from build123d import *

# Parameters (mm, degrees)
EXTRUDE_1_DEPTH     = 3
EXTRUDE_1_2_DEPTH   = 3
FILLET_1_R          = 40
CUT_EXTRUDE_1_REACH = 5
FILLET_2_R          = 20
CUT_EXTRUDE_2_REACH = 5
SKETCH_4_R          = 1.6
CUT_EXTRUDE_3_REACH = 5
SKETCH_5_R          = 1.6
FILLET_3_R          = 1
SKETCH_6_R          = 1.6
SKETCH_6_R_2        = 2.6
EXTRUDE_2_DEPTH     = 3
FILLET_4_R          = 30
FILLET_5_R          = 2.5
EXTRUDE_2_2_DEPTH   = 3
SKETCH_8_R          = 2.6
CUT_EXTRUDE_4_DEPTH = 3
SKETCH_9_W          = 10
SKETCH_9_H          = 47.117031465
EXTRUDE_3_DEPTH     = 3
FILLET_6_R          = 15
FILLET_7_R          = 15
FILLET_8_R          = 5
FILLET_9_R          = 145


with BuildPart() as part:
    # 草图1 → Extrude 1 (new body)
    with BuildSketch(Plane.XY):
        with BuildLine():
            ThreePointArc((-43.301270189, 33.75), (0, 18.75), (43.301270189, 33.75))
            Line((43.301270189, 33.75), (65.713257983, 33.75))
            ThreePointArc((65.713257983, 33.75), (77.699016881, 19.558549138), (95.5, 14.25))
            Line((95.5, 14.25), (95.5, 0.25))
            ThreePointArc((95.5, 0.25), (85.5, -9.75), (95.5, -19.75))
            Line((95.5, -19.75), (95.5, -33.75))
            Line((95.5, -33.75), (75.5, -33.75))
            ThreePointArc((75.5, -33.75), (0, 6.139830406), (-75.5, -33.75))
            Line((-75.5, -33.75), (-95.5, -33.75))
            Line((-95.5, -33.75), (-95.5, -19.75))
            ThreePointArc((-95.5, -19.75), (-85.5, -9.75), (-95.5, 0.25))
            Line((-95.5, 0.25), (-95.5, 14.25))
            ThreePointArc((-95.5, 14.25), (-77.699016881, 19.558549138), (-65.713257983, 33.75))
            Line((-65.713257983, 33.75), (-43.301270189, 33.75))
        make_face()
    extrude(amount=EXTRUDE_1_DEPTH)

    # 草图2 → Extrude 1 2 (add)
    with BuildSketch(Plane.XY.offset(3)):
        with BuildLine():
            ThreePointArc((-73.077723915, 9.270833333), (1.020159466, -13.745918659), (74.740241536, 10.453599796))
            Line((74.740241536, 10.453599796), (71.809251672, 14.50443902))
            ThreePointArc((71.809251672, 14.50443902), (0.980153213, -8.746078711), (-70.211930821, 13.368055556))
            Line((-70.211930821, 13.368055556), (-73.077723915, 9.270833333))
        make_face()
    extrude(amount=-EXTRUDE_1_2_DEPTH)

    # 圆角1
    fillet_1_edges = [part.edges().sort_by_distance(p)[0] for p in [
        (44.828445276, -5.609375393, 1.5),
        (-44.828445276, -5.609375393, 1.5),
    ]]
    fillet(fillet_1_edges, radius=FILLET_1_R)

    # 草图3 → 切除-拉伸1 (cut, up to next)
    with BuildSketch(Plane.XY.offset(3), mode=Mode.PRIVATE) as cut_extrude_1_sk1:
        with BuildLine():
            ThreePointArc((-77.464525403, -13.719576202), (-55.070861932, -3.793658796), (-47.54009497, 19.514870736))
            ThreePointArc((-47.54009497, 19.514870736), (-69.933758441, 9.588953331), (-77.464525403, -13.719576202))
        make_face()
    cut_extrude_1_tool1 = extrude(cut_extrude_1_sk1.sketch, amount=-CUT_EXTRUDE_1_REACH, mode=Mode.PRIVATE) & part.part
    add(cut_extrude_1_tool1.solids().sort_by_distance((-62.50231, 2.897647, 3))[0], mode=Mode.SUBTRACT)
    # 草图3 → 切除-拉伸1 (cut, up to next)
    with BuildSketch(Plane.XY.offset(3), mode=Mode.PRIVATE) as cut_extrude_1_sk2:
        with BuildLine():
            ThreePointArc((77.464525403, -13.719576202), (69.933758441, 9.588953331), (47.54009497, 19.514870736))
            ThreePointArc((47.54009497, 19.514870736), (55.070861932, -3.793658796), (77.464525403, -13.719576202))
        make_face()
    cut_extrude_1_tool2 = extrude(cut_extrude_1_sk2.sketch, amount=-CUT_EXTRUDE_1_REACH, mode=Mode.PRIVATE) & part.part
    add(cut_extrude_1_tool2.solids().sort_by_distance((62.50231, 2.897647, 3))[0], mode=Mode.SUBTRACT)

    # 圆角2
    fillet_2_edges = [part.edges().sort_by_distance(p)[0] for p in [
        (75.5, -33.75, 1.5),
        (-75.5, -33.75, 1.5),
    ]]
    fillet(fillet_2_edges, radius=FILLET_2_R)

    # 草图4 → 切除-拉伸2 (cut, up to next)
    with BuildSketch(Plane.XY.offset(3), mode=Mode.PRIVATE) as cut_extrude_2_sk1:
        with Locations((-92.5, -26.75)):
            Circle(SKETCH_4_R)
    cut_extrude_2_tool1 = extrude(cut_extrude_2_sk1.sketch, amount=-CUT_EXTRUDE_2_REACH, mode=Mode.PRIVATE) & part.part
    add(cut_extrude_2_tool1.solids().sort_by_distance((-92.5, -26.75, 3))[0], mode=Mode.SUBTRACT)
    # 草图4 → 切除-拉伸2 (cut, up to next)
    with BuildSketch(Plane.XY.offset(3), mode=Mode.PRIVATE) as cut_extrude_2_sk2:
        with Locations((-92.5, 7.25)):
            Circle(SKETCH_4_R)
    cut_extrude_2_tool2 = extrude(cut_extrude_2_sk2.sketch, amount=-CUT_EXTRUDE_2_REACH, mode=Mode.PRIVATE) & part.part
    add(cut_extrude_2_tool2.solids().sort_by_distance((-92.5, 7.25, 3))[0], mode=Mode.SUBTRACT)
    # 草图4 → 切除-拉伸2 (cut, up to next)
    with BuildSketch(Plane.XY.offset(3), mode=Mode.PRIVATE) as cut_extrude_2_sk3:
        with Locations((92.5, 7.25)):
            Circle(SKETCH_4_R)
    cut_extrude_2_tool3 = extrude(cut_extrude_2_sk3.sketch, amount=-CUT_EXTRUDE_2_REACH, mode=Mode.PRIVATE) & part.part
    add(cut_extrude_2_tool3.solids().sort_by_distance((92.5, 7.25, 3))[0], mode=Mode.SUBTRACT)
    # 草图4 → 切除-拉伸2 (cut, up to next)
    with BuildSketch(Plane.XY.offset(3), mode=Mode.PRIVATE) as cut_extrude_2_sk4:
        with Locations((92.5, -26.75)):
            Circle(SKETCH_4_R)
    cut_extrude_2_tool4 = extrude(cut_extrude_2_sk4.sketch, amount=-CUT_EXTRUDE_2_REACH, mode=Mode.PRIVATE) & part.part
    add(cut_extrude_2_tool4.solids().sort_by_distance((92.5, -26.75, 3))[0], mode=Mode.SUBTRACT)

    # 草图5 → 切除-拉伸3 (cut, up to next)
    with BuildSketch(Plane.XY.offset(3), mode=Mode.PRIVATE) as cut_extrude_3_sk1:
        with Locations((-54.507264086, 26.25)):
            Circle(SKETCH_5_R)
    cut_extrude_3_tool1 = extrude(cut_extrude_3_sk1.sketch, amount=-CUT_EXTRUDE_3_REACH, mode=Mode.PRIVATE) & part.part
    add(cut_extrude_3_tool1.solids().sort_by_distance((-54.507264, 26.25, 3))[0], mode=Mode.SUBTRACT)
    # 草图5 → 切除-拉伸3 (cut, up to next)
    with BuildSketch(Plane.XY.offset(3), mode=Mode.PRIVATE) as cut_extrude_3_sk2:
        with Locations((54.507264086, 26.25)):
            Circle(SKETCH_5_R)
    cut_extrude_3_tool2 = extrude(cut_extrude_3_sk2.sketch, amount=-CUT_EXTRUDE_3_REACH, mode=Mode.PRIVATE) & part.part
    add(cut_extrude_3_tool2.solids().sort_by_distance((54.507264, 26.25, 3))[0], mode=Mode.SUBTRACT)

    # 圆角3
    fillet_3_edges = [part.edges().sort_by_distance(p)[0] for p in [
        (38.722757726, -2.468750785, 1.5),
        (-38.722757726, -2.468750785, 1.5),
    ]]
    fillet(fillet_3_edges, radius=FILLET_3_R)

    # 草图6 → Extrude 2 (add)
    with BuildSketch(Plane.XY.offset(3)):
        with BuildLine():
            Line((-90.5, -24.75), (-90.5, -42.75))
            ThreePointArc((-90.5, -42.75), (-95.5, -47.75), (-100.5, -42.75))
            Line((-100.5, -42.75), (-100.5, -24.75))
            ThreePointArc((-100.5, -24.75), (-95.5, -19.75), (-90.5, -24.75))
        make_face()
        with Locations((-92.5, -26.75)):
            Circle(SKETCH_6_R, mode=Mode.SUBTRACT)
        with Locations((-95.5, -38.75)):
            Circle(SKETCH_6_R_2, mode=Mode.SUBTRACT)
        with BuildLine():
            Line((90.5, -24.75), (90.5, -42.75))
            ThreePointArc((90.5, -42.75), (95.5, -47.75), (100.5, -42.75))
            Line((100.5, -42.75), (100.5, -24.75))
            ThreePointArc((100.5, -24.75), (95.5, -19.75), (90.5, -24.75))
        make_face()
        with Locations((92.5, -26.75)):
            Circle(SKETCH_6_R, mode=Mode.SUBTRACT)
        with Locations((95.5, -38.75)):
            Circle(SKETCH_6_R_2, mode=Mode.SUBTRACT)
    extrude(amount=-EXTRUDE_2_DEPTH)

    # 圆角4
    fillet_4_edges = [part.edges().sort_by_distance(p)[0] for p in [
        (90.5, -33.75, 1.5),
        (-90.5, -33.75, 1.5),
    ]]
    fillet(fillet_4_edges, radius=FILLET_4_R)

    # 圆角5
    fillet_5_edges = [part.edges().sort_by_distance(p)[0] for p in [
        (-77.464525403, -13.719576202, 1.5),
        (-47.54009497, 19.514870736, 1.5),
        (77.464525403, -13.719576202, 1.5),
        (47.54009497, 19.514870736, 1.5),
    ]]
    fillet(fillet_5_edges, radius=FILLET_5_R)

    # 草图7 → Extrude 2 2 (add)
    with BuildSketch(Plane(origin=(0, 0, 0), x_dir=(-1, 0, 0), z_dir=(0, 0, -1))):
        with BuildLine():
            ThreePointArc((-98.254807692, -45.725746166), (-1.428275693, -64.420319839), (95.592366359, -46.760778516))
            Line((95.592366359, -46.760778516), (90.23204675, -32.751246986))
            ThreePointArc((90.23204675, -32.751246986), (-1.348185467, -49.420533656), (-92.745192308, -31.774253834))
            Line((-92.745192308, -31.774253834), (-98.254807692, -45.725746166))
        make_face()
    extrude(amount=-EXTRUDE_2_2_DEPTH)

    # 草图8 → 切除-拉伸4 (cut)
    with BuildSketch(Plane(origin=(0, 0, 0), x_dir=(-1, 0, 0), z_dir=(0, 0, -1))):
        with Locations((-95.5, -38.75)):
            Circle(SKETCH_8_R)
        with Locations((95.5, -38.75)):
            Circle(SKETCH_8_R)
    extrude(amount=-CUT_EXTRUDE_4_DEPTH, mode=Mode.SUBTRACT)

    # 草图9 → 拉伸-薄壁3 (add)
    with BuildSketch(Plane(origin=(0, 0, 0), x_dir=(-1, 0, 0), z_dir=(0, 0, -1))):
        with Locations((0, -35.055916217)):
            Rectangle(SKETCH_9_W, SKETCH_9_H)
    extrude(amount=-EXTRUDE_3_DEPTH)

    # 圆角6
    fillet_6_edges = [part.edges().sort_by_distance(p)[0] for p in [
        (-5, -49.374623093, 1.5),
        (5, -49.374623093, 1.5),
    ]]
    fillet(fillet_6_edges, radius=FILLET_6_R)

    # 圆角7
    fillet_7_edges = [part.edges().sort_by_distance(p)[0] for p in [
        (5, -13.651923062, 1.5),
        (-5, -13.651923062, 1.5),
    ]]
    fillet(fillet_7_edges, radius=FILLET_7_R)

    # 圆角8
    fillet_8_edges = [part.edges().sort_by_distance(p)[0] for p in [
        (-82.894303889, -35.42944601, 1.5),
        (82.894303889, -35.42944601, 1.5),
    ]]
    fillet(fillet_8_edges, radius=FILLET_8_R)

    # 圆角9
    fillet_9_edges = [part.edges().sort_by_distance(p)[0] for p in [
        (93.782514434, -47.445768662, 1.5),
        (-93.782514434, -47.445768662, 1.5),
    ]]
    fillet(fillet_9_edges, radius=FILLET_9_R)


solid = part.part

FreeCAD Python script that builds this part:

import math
import FreeCAD as App
import Part
import Sketcher

V = App.Vector
Q = App.Units.Quantity


def edges_at(feature, points):
    """Names of the edges that pass closest to the given points."""
    edges = feature.Shape.Edges
    near = lambda p: min(range(len(edges)), key=lambda i: edges[i].distToShape(Part.Vertex(*p))[0])
    return sorted({f"Edge{near(p) + 1}" for p in points})

doc = App.newDocument("Part")
body = doc.addObject("PartDesign::Body", "Body")

# Sketch on XY plane
sketch1 = body.newObject("Sketcher::SketchObject", "Sketch")
sketch1.AttachmentSupport = (doc.getObject("XY_Plane"), [""])
sketch1.MapMode = "FlatFace"
sketch1.addGeometry([
    Part.ArcOfCircle(Part.Circle(V(0, 89, 0), V(0, 0, 1), 70), math.radians(-128), math.radians(-52)),  # 0
    Part.LineSegment(V(-43, 34, 0), V(-66, 34, 0)),  # 1
    Part.ArcOfCircle(Part.Circle(V(-96, 47, 0), V(0, 0, 1), 33), math.radians(-90), math.radians(-24)),  # 2
    Part.LineSegment(V(-96, 14, 0), V(-96, 0, 0)),  # 3
    Part.ArcOfCircle(Part.Circle(V(-96, -10, 0), V(0, 0, 1), 10), math.radians(-90), math.radians(90)),  # 4
    Part.LineSegment(V(-96, -20, 0), V(-96, -34, 0)),  # 5
    Part.LineSegment(V(-96, -34, 0), V(-76, -34, 0)),  # 6
    Part.ArcOfCircle(Part.Circle(V(0, -85, 0), V(0, 0, 1), 91), math.radians(34), math.radians(146)),  # 7
    Part.LineSegment(V(76, -34, 0), V(96, -34, 0)),  # 8
    Part.LineSegment(V(96, -34, 0), V(96, -20, 0)),  # 9
    Part.ArcOfCircle(Part.Circle(V(96, -10, 0), V(0, 0, 1), 10), math.radians(90), math.radians(270)),  # 10
    Part.LineSegment(V(96, 0, 0), V(96, 14, 0)),  # 11
    Part.ArcOfCircle(Part.Circle(V(96, 47, 0), V(0, 0, 1), 33), math.radians(-156), math.radians(-90)),  # 12
    Part.LineSegment(V(66, 34, 0), V(43, 34, 0)),  # 13
], False)
sketch1.addConstraint([
    Sketcher.Constraint("Coincident", 0, 1, 1, 1),
    Sketcher.Constraint("Coincident", 1, 2, 2, 2),
    Sketcher.Constraint("Coincident", 2, 1, 3, 1),
    Sketcher.Constraint("Coincident", 3, 2, 4, 2),
    Sketcher.Constraint("Coincident", 4, 1, 5, 1),
    Sketcher.Constraint("Coincident", 5, 2, 6, 1),
    Sketcher.Constraint("Coincident", 6, 2, 7, 2),
    Sketcher.Constraint("Coincident", 7, 1, 8, 1),
    Sketcher.Constraint("Coincident", 8, 2, 9, 1),
    Sketcher.Constraint("Coincident", 9, 2, 10, 2),
    Sketcher.Constraint("Coincident", 10, 1, 11, 1),
    Sketcher.Constraint("Coincident", 11, 2, 12, 2),
    Sketcher.Constraint("Coincident", 12, 1, 13, 1),
    Sketcher.Constraint("Coincident", 13, 2, 0, 2),
    Sketcher.Constraint("Horizontal", 1),
    Sketcher.Constraint("Vertical", 3),
    Sketcher.Constraint("Vertical", 5),
    Sketcher.Constraint("Horizontal", 6),
    Sketcher.Constraint("Horizontal", 8),
    Sketcher.Constraint("Vertical", 9),
    Sketcher.Constraint("Vertical", 11),
    Sketcher.Constraint("Horizontal", 13),
    Sketcher.Constraint("Equal", 4, 10),
    Sketcher.Constraint("Equal", 2, 12),
    Sketcher.Constraint("Symmetric", 4, 3, 10, 3, -2),
    Sketcher.Constraint("Symmetric", 2, 3, 12, 3, -2),
    Sketcher.Constraint("Symmetric", 6, 2, 7, 1, -2),
    Sketcher.Constraint("Symmetric", 0, 1, 13, 2, -2),
    Sketcher.Constraint("Vertical", 2, 3, 4, 3),
    Sketcher.Constraint("Vertical", 4, 3, 2, 1),
    Sketcher.Constraint("Vertical", 3, 2, 4, 1),
    Sketcher.Constraint("Vertical", 12, 3, 8, 2),
    Sketcher.Constraint("Vertical", 9, 2, 10, 1),
    Sketcher.Constraint("Equal", 3, 5),
    Sketcher.Constraint("Radius", 0, Q("70 mm")),
    Sketcher.Constraint("Radius", 4, Q("10 mm")),
    Sketcher.Constraint("Radius", 2, Q("32.5 mm")),
    Sketcher.Constraint("DistanceX", 6, 1, 6, 2, Q("20 mm")),
    Sketcher.Constraint("DistanceY", 3, 2, 3, 1, Q("14 mm")),
    Sketcher.Constraint("DistanceY", 2, 3, 0, 3, Q("42 mm")),
    Sketcher.Constraint("DistanceX", 4, 3, 10, 3, Q("191 mm")),
    Sketcher.Constraint("DistanceY", 0, 1, 2, 3, Q("13 mm")),
    Sketcher.Constraint("DistanceY", -1, 1, 0, 3, Q("88.75 mm")),
    Sketcher.Constraint("Radius", 7, Q("91.39483 mm")),
])
pad1 = body.newObject("PartDesign::Pad", "Pad")
pad1.Profile = sketch1
pad1.Length = 3

# Sketch on XY plane
sketch2 = body.newObject("Sketcher::SketchObject", "Sketch001")
sketch2.AttachmentSupport = (doc.getObject("XY_Plane"), [""])
sketch2.MapMode = "FlatFace"
sketch2.AttachmentOffset = App.Placement(V(0, 0, 3), App.Rotation())
sketch2.addGeometry([
    Part.ArcOfCircle(Part.Circle(V(0, 114, 0), V(0, 0, 1), 127), math.radians(-125), math.radians(-54)),
    Part.LineSegment(V(75, 10, 0), V(72, 15, 0)),
    Part.ArcOfCircle(Part.Circle(V(0, 114, 0), V(0, 0, 1), 123), math.radians(-125), math.radians(-54)),
    Part.LineSegment(V(-70, 13, 0), V(-73, 9, 0)),
], False)
sketch2.addConstraint([
    Sketcher.Constraint("Coincident", 0, 2, 1, 1),
    Sketcher.Constraint("Coincident", 1, 2, 2, 2),
    Sketcher.Constraint("Coincident", 2, 1, 3, 1),
    Sketcher.Constraint("Coincident", 3, 2, 0, 1),
    Sketcher.Constraint("Coincident", 2, 3, 0, 3),
    Sketcher.Constraint("PointOnObject", 0, 3, -2),
    Sketcher.Constraint("Radius", 0, Q("127.5 mm")),
    Sketcher.Constraint("Radius", 2, Q("122.5 mm")),
    Sketcher.Constraint("DistanceY", -1, 1, 0, 3, Q("113.75 mm")),
    Sketcher.Constraint("DistanceY", -1, 1, 0, 2, Q("10.4536 mm")),
    Sketcher.Constraint("DistanceX", -1, 1, 1, 2, Q("71.809252 mm")),
    Sketcher.Constraint("DistanceX", 2, 1, -1, 1, Q("70.211931 mm")),
    Sketcher.Constraint("DistanceX", 3, 2, -1, 1, Q("73.077724 mm")),
])
pad2 = body.newObject("PartDesign::Pad", "Pad001")
pad2.Profile = sketch2
pad2.Length = 3
pad2.Reversed = True
doc.recompute()

fillet = body.newObject("PartDesign::Fillet", "Fillet")
fillet.Base = (pad2, edges_at(pad2, [(44.828, -5.609, 1.5), (-44.828, -5.609, 1.5)]))
fillet.Radius = 40

# Sketch on XY plane
sketch3 = body.newObject("Sketcher::SketchObject", "Sketch002")
sketch3.AttachmentSupport = (doc.getObject("XY_Plane"), [""])
sketch3.MapMode = "FlatFace"
sketch3.AttachmentOffset = App.Placement(V(0, 0, 3), App.Rotation())
sketch3.addGeometry([
    Part.ArcOfCircle(Part.Circle(V(-77, 16, 0), V(0, 0, 1), 30), math.radians(-90), math.radians(6)),
    Part.ArcOfCircle(Part.Circle(V(-48, -10, 0), V(0, 0, 1), 30), math.radians(90), math.radians(186)),
], False)
sketch3.addConstraint([
    Sketcher.Constraint("Coincident", 0, 1, 1, 2),
    Sketcher.Constraint("Coincident", 1, 1, 0, 2),
    Sketcher.Constraint("Equal", 0, 1),
    Sketcher.Constraint("Radius", 0, Q("30 mm")),
    Sketcher.Constraint("DistanceY", -1, 1, 0, 3, Q("16.280259 mm")),
    Sketcher.Constraint("DistanceY", -1, 1, 1, 1, Q("19.514871 mm")),
    Sketcher.Constraint("DistanceX", 0, 1, 0, 3, Q("0.099319 mm")),
    Sketcher.Constraint("DistanceX", 0, 3, -1, 1, Q("77.365207 mm")),
])
pocket1 = body.newObject("PartDesign::Pocket", "Pocket")
pocket1.Profile = sketch3
pocket1.Type = "UpToFirst"

# Sketch on XY plane
sketch4 = body.newObject("Sketcher::SketchObject", "Sketch003")
sketch4.AttachmentSupport = (doc.getObject("XY_Plane"), [""])
sketch4.MapMode = "FlatFace"
sketch4.AttachmentOffset = App.Placement(V(0, 0, 3), App.Rotation())
sketch4.addGeometry([
    Part.ArcOfCircle(Part.Circle(V(48, -10, 0), V(0, 0, 1), 30), math.radians(-6), math.radians(90)),
    Part.ArcOfCircle(Part.Circle(V(77, 16, 0), V(0, 0, 1), 30), math.radians(174), math.radians(270)),
], False)
sketch4.addConstraint([
    Sketcher.Constraint("Coincident", 0, 1, 1, 2),
    Sketcher.Constraint("Coincident", 1, 1, 0, 2),
    Sketcher.Constraint("Equal", 0, 1),
    Sketcher.Constraint("Radius", 0, Q("30 mm")),
    Sketcher.Constraint("DistanceY", -1, 1, 1, 3, Q("16.280259 mm")),
    Sketcher.Constraint("DistanceY", -1, 1, 1, 1, Q("19.514871 mm")),
    Sketcher.Constraint("DistanceX", 1, 3, 0, 1, Q("0.099319 mm")),
    Sketcher.Constraint("DistanceX", -1, 1, 0, 3, Q("47.639414 mm")),
])
pocket2 = body.newObject("PartDesign::Pocket", "Pocket001")
pocket2.Profile = sketch4
pocket2.Type = "UpToFirst"
doc.recompute()

fillet2 = body.newObject("PartDesign::Fillet", "Fillet001")
fillet2.Base = (pocket2, edges_at(pocket2, [(75.5, -33.75, 1.5), (-75.5, -33.75, 1.5)]))
fillet2.Radius = 20

# Sketch on XY plane
sketch5 = body.newObject("Sketcher::SketchObject", "Sketch004")
sketch5.AttachmentSupport = (doc.getObject("XY_Plane"), [""])
sketch5.MapMode = "FlatFace"
sketch5.AttachmentOffset = App.Placement(V(0, 0, 3), App.Rotation())
sketch5.addGeometry(Part.Circle(V(-92.5, -26.8, 0), V(0, 0, 1), 1.6), False)
sketch5.addConstraint([
    Sketcher.Constraint("Diameter", 0, Q("3.2 mm")),
    Sketcher.Constraint("DistanceX", 0, 3, -1, 1, Q("92.5 mm")),
    Sketcher.Constraint("DistanceY", 0, 3, -1, 1, Q("26.75 mm")),
])
pocket3 = body.newObject("PartDesign::Pocket", "Pocket002")
pocket3.Profile = sketch5
pocket3.Type = "UpToFirst"

# Sketch on XY plane
sketch6 = body.newObject("Sketcher::SketchObject", "Sketch005")
sketch6.AttachmentSupport = (doc.getObject("XY_Plane"), [""])
sketch6.MapMode = "FlatFace"
sketch6.AttachmentOffset = App.Placement(V(0, 0, 3), App.Rotation())
sketch6.addGeometry(Part.Circle(V(-92.5, 7.2, 0), V(0, 0, 1), 1.6), False)
sketch6.addConstraint([
    Sketcher.Constraint("Diameter", 0, Q("3.2 mm")),
    Sketcher.Constraint("DistanceX", 0, 3, -1, 1, Q("92.5 mm")),
    Sketcher.Constraint("DistanceY", -1, 1, 0, 3, Q("7.25 mm")),
])
pocket4 = body.newObject("PartDesign::Pocket", "Pocket003")
pocket4.Profile = sketch6
pocket4.Type = "UpToFirst"

# Sketch on XY plane
sketch7 = body.newObject("Sketcher::SketchObject", "Sketch006")
sketch7.AttachmentSupport = (doc.getObject("XY_Plane"), [""])
sketch7.MapMode = "FlatFace"
sketch7.AttachmentOffset = App.Placement(V(0, 0, 3), App.Rotation())
sketch7.addGeometry(Part.Circle(V(92.5, 7.2, 0), V(0, 0, 1), 1.6), False)
sketch7.addConstraint([
    Sketcher.Constraint("Diameter", 0, Q("3.2 mm")),
    Sketcher.Constraint("DistanceX", -1, 1, 0, 3, Q("92.5 mm")),
    Sketcher.Constraint("DistanceY", -1, 1, 0, 3, Q("7.25 mm")),
])
pocket5 = body.newObject("PartDesign::Pocket", "Pocket004")
pocket5.Profile = sketch7
pocket5.Type = "UpToFirst"

# Sketch on XY plane
sketch8 = body.newObject("Sketcher::SketchObject", "Sketch007")
sketch8.AttachmentSupport = (doc.getObject("XY_Plane"), [""])
sketch8.MapMode = "FlatFace"
sketch8.AttachmentOffset = App.Placement(V(0, 0, 3), App.Rotation())
sketch8.addGeometry(Part.Circle(V(92.5, -26.8, 0), V(0, 0, 1), 1.6), False)
sketch8.addConstraint([
    Sketcher.Constraint("Diameter", 0, Q("3.2 mm")),
    Sketcher.Constraint("DistanceX", -1, 1, 0, 3, Q("92.5 mm")),
    Sketcher.Constraint("DistanceY", 0, 3, -1, 1, Q("26.75 mm")),
])
pocket6 = body.newObject("PartDesign::Pocket", "Pocket005")
pocket6.Profile = sketch8
pocket6.Type = "UpToFirst"

# Sketch on XY plane
sketch9 = body.newObject("Sketcher::SketchObject", "Sketch008")
sketch9.AttachmentSupport = (doc.getObject("XY_Plane"), [""])
sketch9.MapMode = "FlatFace"
sketch9.AttachmentOffset = App.Placement(V(0, 0, 3), App.Rotation())
sketch9.addGeometry(Part.Circle(V(-54.5, 26.2, 0), V(0, 0, 1), 1.6), False)
sketch9.addConstraint([
    Sketcher.Constraint("Diameter", 0, Q("3.2 mm")),
    Sketcher.Constraint("DistanceY", -1, 1, 0, 3, Q("26.25 mm")),
    Sketcher.Constraint("DistanceX", 0, 3, -1, 1, Q("54.507264 mm")),
])
pocket7 = body.newObject("PartDesign::Pocket", "Pocket006")
pocket7.Profile = sketch9
pocket7.Type = "UpToFirst"

# Sketch on XY plane
sketch10 = body.newObject("Sketcher::SketchObject", "Sketch009")
sketch10.AttachmentSupport = (doc.getObject("XY_Plane"), [""])
sketch10.MapMode = "FlatFace"
sketch10.AttachmentOffset = App.Placement(V(0, 0, 3), App.Rotation())
sketch10.addGeometry(Part.Circle(V(54.5, 26.2, 0), V(0, 0, 1), 1.6), False)
sketch10.addConstraint([
    Sketcher.Constraint("Diameter", 0, Q("3.2 mm")),
    Sketcher.Constraint("DistanceY", -1, 1, 0, 3, Q("26.25 mm")),
    Sketcher.Constraint("DistanceX", -1, 1, 0, 3, Q("54.507264 mm")),
])
pocket8 = body.newObject("PartDesign::Pocket", "Pocket007")
pocket8.Profile = sketch10
pocket8.Type = "UpToFirst"
doc.recompute()

fillet3 = body.newObject("PartDesign::Fillet", "Fillet002")
fillet3.Base = (pocket8, edges_at(pocket8, [(38.723, -2.469, 1.5), (-38.723, -2.469, 1.5)]))
fillet3.Radius = 1

# Sketch on XY plane
sketch11 = body.newObject("Sketcher::SketchObject", "Sketch010")
sketch11.AttachmentSupport = (doc.getObject("XY_Plane"), [""])
sketch11.MapMode = "FlatFace"
sketch11.AttachmentOffset = App.Placement(V(0, 0, 3), App.Rotation())
sketch11.addGeometry([
    Part.LineSegment(V(-90.5, -42.8, 0), V(-90.5, -24.8, 0)),  # 0
    Part.ArcOfCircle(Part.Circle(V(-95.5, -24.8, 0), V(0, 0, 1), 5), math.radians(0), math.radians(180)),  # 1
    Part.LineSegment(V(-100.5, -24.8, 0), V(-100.5, -42.8, 0)),  # 2
    Part.ArcOfCircle(Part.Circle(V(-95.5, -42.8, 0), V(0, 0, 1), 5), math.radians(180), math.radians(360)),  # 3
    Part.Circle(V(-95.5, -38.8, 0), V(0, 0, 1), 2.6),  # 4
    Part.Circle(V(-92.5, -26.8, 0), V(0, 0, 1), 1.6),  # 5
    Part.LineSegment(V(90.5, -24.8, 0), V(90.5, -42.8, 0)),  # 6
    Part.ArcOfCircle(Part.Circle(V(95.5, -42.8, 0), V(0, 0, 1), 5), math.radians(180), math.radians(360)),  # 7
    Part.LineSegment(V(100.5, -42.8, 0), V(100.5, -24.8, 0)),  # 8
    Part.ArcOfCircle(Part.Circle(V(95.5, -24.8, 0), V(0, 0, 1), 5), math.radians(0), math.radians(180)),  # 9
    Part.Circle(V(95.5, -38.8, 0), V(0, 0, 1), 2.6),  # 10
    Part.Circle(V(92.5, -26.8, 0), V(0, 0, 1), 1.6),  # 11
], False)
sketch11.addConstraint([
    Sketcher.Constraint("Tangent", 0, 2, 1, 1),
    Sketcher.Constraint("Tangent", 1, 2, 2, 1),
    Sketcher.Constraint("Tangent", 2, 2, 3, 1),
    Sketcher.Constraint("Tangent", 3, 2, 0, 1),
    Sketcher.Constraint("Tangent", 6, 2, 7, 1),
    Sketcher.Constraint("Tangent", 7, 2, 8, 1),
    Sketcher.Constraint("Tangent", 8, 2, 9, 1),
    Sketcher.Constraint("Tangent", 9, 2, 6, 1),
    Sketcher.Constraint("Vertical", 0),
    Sketcher.Constraint("Vertical", 2),
    Sketcher.Constraint("Vertical", 6),
    Sketcher.Constraint("Vertical", 8),
    Sketcher.Constraint("Equal", 3, 7),
    Sketcher.Constraint("Equal", 4, 10),
    Sketcher.Constraint("Equal", 5, 11),
    Sketcher.Constraint("Symmetric", 3, 3, 7, 3, -2),
    Sketcher.Constraint("Symmetric", 4, 3, 10, 3, -2),
    Sketcher.Constraint("Symmetric", 5, 3, 11, 3, -2),
    Sketcher.Constraint("Horizontal", 1, 3, 9, 3),
    Sketcher.Constraint("Vertical", 3, 3, 4, 3),
    Sketcher.Constraint("Radius", 1, Q("5 mm")),
    Sketcher.Constraint("Diameter", 4, Q("5.2 mm")),
    Sketcher.Constraint("Diameter", 5, Q("3.2 mm")),
    Sketcher.Constraint("DistanceY", 0, 1, 0, 2, Q("18 mm")),
    Sketcher.Constraint("DistanceY", 3, 3, 4, 3, Q("4 mm")),
    Sketcher.Constraint("DistanceX", 1, 3, 5, 3, Q("3 mm")),
    Sketcher.Constraint("DistanceY", 5, 3, 1, 3, Q("2 mm")),
    Sketcher.Constraint("DistanceX", 5, 3, 7, 3, Q("188 mm")),
    Sketcher.Constraint("DistanceY", 1, 3, -1, 1, Q("24.75 mm")),
])
pad3 = body.newObject("PartDesign::Pad", "Pad002")
pad3.Profile = sketch11
pad3.Length = 3
pad3.Reversed = True
doc.recompute()

fillet4 = body.newObject("PartDesign::Fillet", "Fillet003")
fillet4.Base = (pad3, edges_at(pad3, [(90.5, -33.75, 1.5), (-90.5, -33.75, 1.5)]))
fillet4.Radius = 30
doc.recompute()

fillet5 = body.newObject("PartDesign::Fillet", "Fillet004")
fillet5.Base = (fillet4, edges_at(fillet4, [
    (-77.465, -13.72, 1.5),
    (-47.54, 19.515, 1.5),
    (77.465, -13.72, 1.5),
    (47.54, 19.515, 1.5),
]))
fillet5.Radius = 2.5

# Sketch on XY plane
sketch12 = body.newObject("Sketcher::SketchObject", "Sketch011")
sketch12.AttachmentSupport = (doc.getObject("XY_Plane"), [""])
sketch12.MapMode = "FlatFace"
sketch12.addGeometry([
    Part.ArcOfCircle(Part.Circle(V(0, 203, 0), V(0, 0, 1), 268), math.radians(-111), math.radians(-68)),
    Part.LineSegment(V(-96, -47, 0), V(-90, -33, 0)),
    Part.ArcOfCircle(Part.Circle(V(0, 203, 0), V(0, 0, 1), 253), math.radians(-111), math.radians(-68)),
    Part.LineSegment(V(93, -32, 0), V(98, -46, 0)),
], False)
sketch12.addConstraint([
    Sketcher.Constraint("Coincident", 0, 1, 1, 1),
    Sketcher.Constraint("Coincident", 1, 2, 2, 1),
    Sketcher.Constraint("Coincident", 2, 2, 3, 1),
    Sketcher.Constraint("Coincident", 3, 2, 0, 2),
    Sketcher.Constraint("Coincident", 2, 3, 0, 3),
    Sketcher.Constraint("PointOnObject", 0, 3, -2),
    Sketcher.Constraint("Radius", 0, Q("267.5 mm")),
    Sketcher.Constraint("Radius", 2, Q("252.5 mm")),
    Sketcher.Constraint("DistanceY", 3, 2, 1, 2, Q("12.974499 mm")),
    Sketcher.Constraint("DistanceY", 0, 1, -1, 1, Q("46.760779 mm")),
    Sketcher.Constraint("DistanceX", 0, 1, 1, 2, Q("5.36032 mm")),
    Sketcher.Constraint("DistanceX", 1, 2, 2, 2, Q("182.977239 mm")),
    Sketcher.Constraint("DistanceY", -1, 1, 0, 3, Q("203.075867 mm")),
])
pad4 = body.newObject("PartDesign::Pad", "Pad003")
pad4.Profile = sketch12
pad4.Length = 3

# Sketch on XY plane
sketch13 = body.newObject("Sketcher::SketchObject", "Sketch012")
sketch13.AttachmentSupport = (doc.getObject("XY_Plane"), [""])
sketch13.MapMode = "FlatFace"
sketch13.addGeometry([
    Part.Circle(V(95.5, -38.8, 0), V(0, 0, 1), 2.6),
    Part.Circle(V(-95.5, -38.8, 0), V(0, 0, 1), 2.6),
], False)
sketch13.addConstraint([
    Sketcher.Constraint("Equal", 0, 1),
    Sketcher.Constraint("Symmetric", 0, 3, 1, 3, -2),
    Sketcher.Constraint("Diameter", 0, Q("5.2 mm")),
    Sketcher.Constraint("DistanceX", 1, 3, 0, 3, Q("191 mm")),
    Sketcher.Constraint("DistanceY", 0, 3, -1, 1, Q("38.75 mm")),
])
pocket9 = body.newObject("PartDesign::Pocket", "Pocket008")
pocket9.Profile = sketch13
pocket9.Length = 3
pocket9.Reversed = True

# Sketch on XY plane
sketch14 = body.newObject("Sketcher::SketchObject", "Sketch013")
sketch14.AttachmentSupport = (doc.getObject("XY_Plane"), [""])
sketch14.MapMode = "FlatFace"
sketch14.addGeometry([
    Part.LineSegment(V(5, -11, 0), V(5, -59, 0)),
    Part.LineSegment(V(5, -59, 0), V(-5, -59, 0)),
    Part.LineSegment(V(-5, -59, 0), V(-5, -11, 0)),
    Part.LineSegment(V(-5, -11, 0), V(5, -11, 0)),
], False)
sketch14.addConstraint([
    Sketcher.Constraint("Coincident", 0, 2, 1, 1),
    Sketcher.Constraint("Coincident", 1, 2, 2, 1),
    Sketcher.Constraint("Coincident", 2, 2, 3, 1),
    Sketcher.Constraint("Coincident", 3, 2, 0, 1),
    Sketcher.Constraint("Vertical", 0),
    Sketcher.Constraint("Horizontal", 1),
    Sketcher.Constraint("Vertical", 2),
    Sketcher.Constraint("Horizontal", 3),
    Sketcher.Constraint("DistanceX", 1, 2, 1, 1, Q("10 mm")),
    Sketcher.Constraint("DistanceX", -1, 1, 0, 2, Q("5 mm")),
    Sketcher.Constraint("DistanceY", 0, 2, 0, 1, Q("47.117031 mm")),
    Sketcher.Constraint("DistanceY", 2, 2, -1, 1, Q("11.4974 mm")),
])
pad5 = body.newObject("PartDesign::Pad", "Pad004")
pad5.Profile = sketch14
pad5.Length = 3
doc.recompute()

fillet6 = body.newObject("PartDesign::Fillet", "Fillet005")
fillet6.Base = (pad5, edges_at(pad5, [(-5, -49.375, 1.5), (5, -49.375, 1.5)]))
fillet6.Radius = 15
doc.recompute()

fillet7 = body.newObject("PartDesign::Fillet", "Fillet006")
fillet7.Base = (fillet6, edges_at(fillet6, [(5, -13.652, 1.5), (-5, -13.652, 1.5)]))
fillet7.Radius = 15
doc.recompute()

fillet8 = body.newObject("PartDesign::Fillet", "Fillet007")
fillet8.Base = (fillet7, edges_at(fillet7, [(-82.894, -35.429, 1.5), (82.894, -35.429, 1.5)]))
fillet8.Radius = 5
doc.recompute()

fillet9 = body.newObject("PartDesign::Fillet", "Fillet008")
fillet9.Base = (fillet8, edges_at(fillet8, [(93.783, -47.446, 1.5), (-93.783, -47.446, 1.5)]))
fillet9.Radius = 145

doc.recompute()
